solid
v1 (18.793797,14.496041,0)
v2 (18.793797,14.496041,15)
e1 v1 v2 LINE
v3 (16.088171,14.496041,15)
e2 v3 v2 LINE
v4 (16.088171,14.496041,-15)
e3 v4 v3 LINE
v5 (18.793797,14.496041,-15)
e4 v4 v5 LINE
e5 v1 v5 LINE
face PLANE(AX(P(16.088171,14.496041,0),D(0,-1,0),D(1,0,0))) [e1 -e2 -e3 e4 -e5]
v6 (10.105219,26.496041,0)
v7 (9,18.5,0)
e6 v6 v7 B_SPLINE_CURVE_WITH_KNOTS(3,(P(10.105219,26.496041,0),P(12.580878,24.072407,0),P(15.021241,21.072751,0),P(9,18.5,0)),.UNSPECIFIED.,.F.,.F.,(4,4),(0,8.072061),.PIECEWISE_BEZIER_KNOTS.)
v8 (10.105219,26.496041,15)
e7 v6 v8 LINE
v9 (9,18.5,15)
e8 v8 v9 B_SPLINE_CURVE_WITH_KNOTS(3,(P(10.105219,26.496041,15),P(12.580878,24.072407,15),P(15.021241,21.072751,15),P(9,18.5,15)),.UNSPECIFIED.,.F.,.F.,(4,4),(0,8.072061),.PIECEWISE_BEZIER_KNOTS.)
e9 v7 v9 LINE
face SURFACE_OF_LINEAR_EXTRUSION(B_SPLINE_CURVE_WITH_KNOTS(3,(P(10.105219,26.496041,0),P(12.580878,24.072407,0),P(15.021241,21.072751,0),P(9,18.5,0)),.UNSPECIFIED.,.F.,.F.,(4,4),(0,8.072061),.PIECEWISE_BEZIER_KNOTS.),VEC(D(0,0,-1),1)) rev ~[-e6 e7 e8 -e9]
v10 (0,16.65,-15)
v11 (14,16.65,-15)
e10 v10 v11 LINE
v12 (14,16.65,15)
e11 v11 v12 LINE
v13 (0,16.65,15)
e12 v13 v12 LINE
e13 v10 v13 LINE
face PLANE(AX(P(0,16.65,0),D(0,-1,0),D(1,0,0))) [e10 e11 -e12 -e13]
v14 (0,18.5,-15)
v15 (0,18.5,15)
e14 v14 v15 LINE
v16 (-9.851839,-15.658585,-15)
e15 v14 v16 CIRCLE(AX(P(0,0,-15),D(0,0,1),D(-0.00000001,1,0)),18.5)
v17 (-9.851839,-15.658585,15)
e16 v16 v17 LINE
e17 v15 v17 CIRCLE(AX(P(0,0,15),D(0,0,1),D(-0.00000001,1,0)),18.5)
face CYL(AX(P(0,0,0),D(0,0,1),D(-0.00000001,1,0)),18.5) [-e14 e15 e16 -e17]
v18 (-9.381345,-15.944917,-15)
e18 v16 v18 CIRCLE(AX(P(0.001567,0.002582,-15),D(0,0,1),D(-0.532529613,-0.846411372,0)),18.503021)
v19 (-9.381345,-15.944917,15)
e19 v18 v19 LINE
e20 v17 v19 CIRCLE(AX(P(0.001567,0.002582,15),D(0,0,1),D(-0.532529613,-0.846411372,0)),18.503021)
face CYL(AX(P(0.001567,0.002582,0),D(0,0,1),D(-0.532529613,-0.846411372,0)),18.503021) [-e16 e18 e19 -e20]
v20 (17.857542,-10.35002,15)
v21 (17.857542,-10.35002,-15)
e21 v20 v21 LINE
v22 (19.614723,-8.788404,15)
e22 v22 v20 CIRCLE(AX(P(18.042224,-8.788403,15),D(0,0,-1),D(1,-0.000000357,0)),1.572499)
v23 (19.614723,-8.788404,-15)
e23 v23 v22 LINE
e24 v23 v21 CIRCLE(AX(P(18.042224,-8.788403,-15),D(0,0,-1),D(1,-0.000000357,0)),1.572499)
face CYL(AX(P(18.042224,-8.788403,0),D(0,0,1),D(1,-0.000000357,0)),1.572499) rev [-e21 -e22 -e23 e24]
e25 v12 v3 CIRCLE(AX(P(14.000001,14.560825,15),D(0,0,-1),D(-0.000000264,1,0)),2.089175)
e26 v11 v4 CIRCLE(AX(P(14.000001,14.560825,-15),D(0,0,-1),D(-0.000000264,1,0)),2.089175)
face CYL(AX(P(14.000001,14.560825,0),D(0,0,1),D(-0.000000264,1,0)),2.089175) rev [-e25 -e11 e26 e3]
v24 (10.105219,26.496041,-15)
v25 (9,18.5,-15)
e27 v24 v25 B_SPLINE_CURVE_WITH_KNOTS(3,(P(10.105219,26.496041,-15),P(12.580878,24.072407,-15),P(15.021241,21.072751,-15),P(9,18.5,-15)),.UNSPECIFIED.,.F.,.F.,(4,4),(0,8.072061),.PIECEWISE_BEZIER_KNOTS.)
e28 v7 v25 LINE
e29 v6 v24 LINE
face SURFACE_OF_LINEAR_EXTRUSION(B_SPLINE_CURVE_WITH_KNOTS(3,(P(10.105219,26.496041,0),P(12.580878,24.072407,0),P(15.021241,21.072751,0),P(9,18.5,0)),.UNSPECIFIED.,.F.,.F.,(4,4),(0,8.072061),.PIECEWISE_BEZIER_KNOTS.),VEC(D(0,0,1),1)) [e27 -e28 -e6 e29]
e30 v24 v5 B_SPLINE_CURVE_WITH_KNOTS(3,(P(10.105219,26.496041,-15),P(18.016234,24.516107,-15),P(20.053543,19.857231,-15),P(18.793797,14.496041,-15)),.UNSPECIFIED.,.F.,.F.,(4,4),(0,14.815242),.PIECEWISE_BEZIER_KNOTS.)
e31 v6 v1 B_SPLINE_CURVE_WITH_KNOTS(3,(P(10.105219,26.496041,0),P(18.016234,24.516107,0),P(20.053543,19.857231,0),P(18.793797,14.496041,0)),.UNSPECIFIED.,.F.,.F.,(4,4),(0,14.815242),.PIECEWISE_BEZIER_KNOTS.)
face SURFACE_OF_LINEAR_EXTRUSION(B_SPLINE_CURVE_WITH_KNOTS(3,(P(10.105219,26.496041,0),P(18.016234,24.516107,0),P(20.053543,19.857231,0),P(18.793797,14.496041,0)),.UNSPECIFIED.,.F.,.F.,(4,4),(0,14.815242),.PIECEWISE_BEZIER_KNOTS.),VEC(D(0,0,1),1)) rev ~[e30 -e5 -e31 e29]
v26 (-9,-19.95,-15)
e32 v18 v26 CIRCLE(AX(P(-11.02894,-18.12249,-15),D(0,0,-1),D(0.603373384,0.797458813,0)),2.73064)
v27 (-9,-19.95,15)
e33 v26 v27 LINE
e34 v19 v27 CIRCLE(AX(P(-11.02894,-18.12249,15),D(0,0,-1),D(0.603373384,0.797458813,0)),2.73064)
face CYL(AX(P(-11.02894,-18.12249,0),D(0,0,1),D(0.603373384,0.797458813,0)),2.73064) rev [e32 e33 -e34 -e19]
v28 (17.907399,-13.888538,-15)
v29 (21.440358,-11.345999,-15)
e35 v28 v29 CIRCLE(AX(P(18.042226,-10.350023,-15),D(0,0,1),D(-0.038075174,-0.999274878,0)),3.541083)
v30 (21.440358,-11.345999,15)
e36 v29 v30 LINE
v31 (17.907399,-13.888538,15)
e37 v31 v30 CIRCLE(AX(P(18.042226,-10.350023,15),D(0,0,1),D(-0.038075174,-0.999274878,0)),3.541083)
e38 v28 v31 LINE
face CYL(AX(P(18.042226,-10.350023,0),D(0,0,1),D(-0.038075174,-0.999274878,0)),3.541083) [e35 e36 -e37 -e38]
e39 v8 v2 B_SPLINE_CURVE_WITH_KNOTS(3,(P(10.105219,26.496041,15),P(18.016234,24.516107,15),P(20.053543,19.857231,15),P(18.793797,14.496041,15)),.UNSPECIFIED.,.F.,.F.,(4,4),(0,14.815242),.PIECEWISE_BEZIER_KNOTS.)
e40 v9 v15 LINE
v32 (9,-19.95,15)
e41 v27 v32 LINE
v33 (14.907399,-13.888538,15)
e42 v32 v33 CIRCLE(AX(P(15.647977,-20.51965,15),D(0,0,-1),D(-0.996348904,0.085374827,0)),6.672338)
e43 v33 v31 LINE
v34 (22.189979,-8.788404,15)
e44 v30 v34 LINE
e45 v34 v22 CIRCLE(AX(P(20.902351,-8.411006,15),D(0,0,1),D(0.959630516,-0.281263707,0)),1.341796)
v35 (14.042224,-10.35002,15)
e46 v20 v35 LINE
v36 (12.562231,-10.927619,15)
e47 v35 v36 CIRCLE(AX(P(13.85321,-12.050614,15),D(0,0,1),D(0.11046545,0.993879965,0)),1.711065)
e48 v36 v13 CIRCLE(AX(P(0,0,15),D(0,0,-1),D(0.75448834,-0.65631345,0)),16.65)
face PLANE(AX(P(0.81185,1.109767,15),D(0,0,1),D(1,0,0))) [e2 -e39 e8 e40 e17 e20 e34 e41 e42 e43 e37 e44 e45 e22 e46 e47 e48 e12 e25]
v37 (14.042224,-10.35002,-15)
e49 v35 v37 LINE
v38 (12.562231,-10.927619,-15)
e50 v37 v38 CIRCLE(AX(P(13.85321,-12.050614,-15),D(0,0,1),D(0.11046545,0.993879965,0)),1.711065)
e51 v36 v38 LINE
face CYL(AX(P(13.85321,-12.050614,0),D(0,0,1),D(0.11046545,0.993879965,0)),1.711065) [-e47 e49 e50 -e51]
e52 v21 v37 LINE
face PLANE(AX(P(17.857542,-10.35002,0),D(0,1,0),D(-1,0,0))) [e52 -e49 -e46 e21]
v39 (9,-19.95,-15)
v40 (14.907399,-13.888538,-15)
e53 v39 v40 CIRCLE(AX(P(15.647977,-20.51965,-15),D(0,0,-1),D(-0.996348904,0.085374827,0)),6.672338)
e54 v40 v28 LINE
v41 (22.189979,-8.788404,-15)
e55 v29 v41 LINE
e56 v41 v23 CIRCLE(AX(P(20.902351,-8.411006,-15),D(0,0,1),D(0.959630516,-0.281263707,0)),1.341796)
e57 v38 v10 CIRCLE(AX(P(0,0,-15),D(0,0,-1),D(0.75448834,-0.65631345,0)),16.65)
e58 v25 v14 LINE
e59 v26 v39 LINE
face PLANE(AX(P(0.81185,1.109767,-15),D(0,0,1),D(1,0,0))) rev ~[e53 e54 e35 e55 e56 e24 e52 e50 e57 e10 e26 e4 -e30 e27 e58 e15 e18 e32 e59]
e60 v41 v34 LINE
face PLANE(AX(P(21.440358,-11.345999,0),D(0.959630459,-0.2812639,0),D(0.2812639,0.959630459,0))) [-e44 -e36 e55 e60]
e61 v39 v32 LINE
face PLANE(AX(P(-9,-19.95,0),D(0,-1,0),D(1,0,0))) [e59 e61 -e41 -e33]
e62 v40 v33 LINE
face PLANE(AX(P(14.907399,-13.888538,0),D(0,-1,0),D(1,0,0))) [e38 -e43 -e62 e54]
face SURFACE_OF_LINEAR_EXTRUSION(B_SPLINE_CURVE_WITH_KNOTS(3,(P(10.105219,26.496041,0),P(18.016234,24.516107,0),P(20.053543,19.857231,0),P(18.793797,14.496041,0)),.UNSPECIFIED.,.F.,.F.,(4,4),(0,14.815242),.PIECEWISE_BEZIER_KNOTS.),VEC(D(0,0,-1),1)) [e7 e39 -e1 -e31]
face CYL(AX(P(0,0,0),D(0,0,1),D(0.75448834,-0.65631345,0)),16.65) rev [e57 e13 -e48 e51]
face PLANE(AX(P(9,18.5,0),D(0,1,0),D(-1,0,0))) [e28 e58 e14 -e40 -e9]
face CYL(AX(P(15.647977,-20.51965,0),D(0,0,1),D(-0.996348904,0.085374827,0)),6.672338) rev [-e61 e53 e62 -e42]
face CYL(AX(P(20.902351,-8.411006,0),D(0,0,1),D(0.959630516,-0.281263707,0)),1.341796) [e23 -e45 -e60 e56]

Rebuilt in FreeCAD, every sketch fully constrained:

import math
import FreeCAD as App
import Part
import Sketcher
from FreeCAD import Vector

doc = App.newDocument("Part")
body = doc.addObject("PartDesign::Body", "Body")

sketch1 = body.newObject("Sketcher::SketchObject", "Sketch")
sketch1.AttachmentSupport = (doc.getObject("XY_Plane"), [""])
sketch1.MapMode = "FlatFace"
sketch1.addGeometry(Part.ArcOfCircle(Part.Circle(Vector(0, 0, 0), Vector(0, 0, 1), 16.65), math.radians(90), math.radians(318.980682)), False)
sketch1.addGeometry(Part.LineSegment(Vector(0, 16.65, 0), Vector(14, 16.65, 0)), False)
sketch1.addGeometry(Part.ArcOfCircle(Part.Circle(Vector(14.000001, 14.560825, 0), Vector(0, 0, 1), 2.089175), math.radians(-1.776987), math.radians(90.000015)), False)
sketch1.addGeometry(Part.LineSegment(Vector(16.088171, 14.496041, 0), Vector(18.793797, 14.496041, 0)), False)
sketch1.addGeometry(Part.BSplineCurve([Vector(10.105219, 26.496041, 0), Vector(18.016234, 24.516107, 0), Vector(20.053543, 19.857231, 0), Vector(18.793797, 14.496041, 0)], [4, 4], [0, 14.815242], False, 3, [1, 1, 1, 1], False), False)
sketch1.addGeometry(Part.BSplineCurve([Vector(10.105219, 26.496041, 0), Vector(12.580878, 24.072407, 0), Vector(15.021241, 21.072751, 0), Vector(9, 18.5, 0)], [4, 4], [0, 8.072061], False, 3, [1, 1, 1, 1], False), False)
sketch1.addGeometry(Part.LineSegment(Vector(9, 18.5, 0), Vector(0, 18.5, 0)), False)
sketch1.addGeometry(Part.ArcOfCircle(Part.Circle(Vector(0, 0, 0), Vector(0, 0, 1), 18.5), math.radians(90.000001), math.radians(237.823319)), False)
sketch1.addGeometry(Part.ArcOfCircle(Part.Circle(Vector(0.001567, 0.002582, 0), Vector(0, 0, 1), 18.503021), math.radians(-122.17653), math.radians(-120.470965)), False)
sketch1.addGeometry(Part.ArcOfCircle(Part.Circle(Vector(-11.02894, -18.12249, 0), Vector(0, 0, 1), 2.73064), math.radians(-42.010047), math.radians(52.888118)), False)
sketch1.addGeometry(Part.LineSegment(Vector(-9, -19.95, 0), Vector(9, -19.95, 0)), False)
sketch1.addGeometry(Part.ArcOfCircle(Part.Circle(Vector(15.647977, -20.51965, 0), Vector(0, 0, 1), 6.672338), math.radians(96.372519), math.radians(175.102421)), False)
sketch1.addGeometry(Part.LineSegment(Vector(14.907399, -13.888538, 0), Vector(17.907399, -13.888538, 0)), False)
sketch1.addGeometry(Part.ArcOfCircle(Part.Circle(Vector(18.042226, -10.350023, 0), Vector(0, 0, 1), 3.541083), math.radians(-92.182074), math.radians(-16.335607)), False)
sketch1.addGeometry(Part.LineSegment(Vector(21.440358, -11.345999, 0), Vector(22.189979, -8.788404, 0)), False)
sketch1.addGeometry(Part.ArcOfCircle(Part.Circle(Vector(20.902351, -8.411006, 0), Vector(0, 0, 1), 1.341796), math.radians(-16.335641), math.radians(196.335641)), False)
sketch1.addGeometry(Part.ArcOfCircle(Part.Circle(Vector(18.042224, -8.788403, 0), Vector(0, 0, 1), 1.572499), math.radians(-96.744657), math.radians(-0.00002)), False)
sketch1.addGeometry(Part.LineSegment(Vector(17.857542, -10.35002, 0), Vector(14.042224, -10.35002, 0)), False)
sketch1.addGeometry(Part.ArcOfCircle(Part.Circle(Vector(13.85321, -12.050614, 0), Vector(0, 0, 1), 1.711065), math.radians(83.657853), math.radians(138.98071)), False)
sketch1.addConstraint(Sketcher.Constraint("Block", 4))
sketch1.addConstraint(Sketcher.Constraint("Block", 5))
sketch1.addConstraint(Sketcher.Constraint("Coincident", 0, 1, 1, 1))
sketch1.addConstraint(Sketcher.Constraint("Coincident", 1, 2, 2, 2))
sketch1.addConstraint(Sketcher.Constraint("Coincident", 2, 1, 3, 1))
sketch1.addConstraint(Sketcher.Constraint("Coincident", 3, 2, 4, 2))
sketch1.addConstraint(Sketcher.Constraint("Coincident", 5, 2, 6, 1))
sketch1.addConstraint(Sketcher.Constraint("Coincident", 6, 2, 7, 1))
sketch1.addConstraint(Sketcher.Constraint("Coincident", 7, 2, 8, 1))
sketch1.addConstraint(Sketcher.Constraint("Coincident", 8, 2, 9, 2))
sketch1.addConstraint(Sketcher.Constraint("Coincident", 9, 1, 10, 1))
sketch1.addConstraint(Sketcher.Constraint("Coincident", 10, 2, 11, 2))
sketch1.addConstraint(Sketcher.Constraint("Coincident", 11, 1, 12, 1))
sketch1.addConstraint(Sketcher.Constraint("Coincident", 12, 2, 13, 1))
sketch1.addConstraint(Sketcher.Constraint("Coincident", 13, 2, 14, 1))
sketch1.addConstraint(Sketcher.Constraint("Coincident", 14, 2, 15, 1))
sketch1.addConstraint(Sketcher.Constraint("Coincident", 15, 2, 16, 2))
sketch1.addConstraint(Sketcher.Constraint("Coincident", 16, 1, 17, 1))
sketch1.addConstraint(Sketcher.Constraint("Coincident", 17, 2, 18, 1))
sketch1.addConstraint(Sketcher.Constraint("Coincident", 18, 2, 0, 2))
sketch1.addConstraint(Sketcher.Constraint("Horizontal", 1))
sketch1.addConstraint(Sketcher.Constraint("Horizontal", 3))
sketch1.addConstraint(Sketcher.Constraint("Horizontal", 6))
sketch1.addConstraint(Sketcher.Constraint("Horizontal", 10))
sketch1.addConstraint(Sketcher.Constraint("Horizontal", 12))
sketch1.addConstraint(Sketcher.Constraint("Horizontal", 17))
sketch1.addConstraint(Sketcher.Constraint("Coincident", 0, 3, -1, 1))
sketch1.addConstraint(Sketcher.Constraint("Coincident", 7, 3, -1, 1))
sketch1.addConstraint(Sketcher.Constraint("PointOnObject", 0, 1, -2))
sketch1.addConstraint(Sketcher.Constraint("PointOnObject", 6, 2, -2))
sketch1.addConstraint(Sketcher.Constraint("DistanceX", 1, 1, 1, 2, 14.0))
sketch1.addConstraint(Sketcher.Constraint("DistanceX", 10, 1, 10, 2, 18.0))
sketch1.addConstraint(Sketcher.Constraint("DistanceX", 12, 1, 12, 2, 3.0))
sketch1.addConstraint(Sketcher.Constraint("Radius", 0, 16.65))
sketch1.addConstraint(Sketcher.Constraint("DistanceX", -1, 1, 2, 3, 14.000001))
sketch1.addConstraint(Sketcher.Constraint("DistanceX", 9, 1, -1, 1, 9.0))
sketch1.addConstraint(Sketcher.Constraint("DistanceX", 17, 2, 16, 3, 4.0))
sketch1.addConstraint(Sketcher.Constraint("Radius", 16, 1.572499))
sketch1.addConstraint(Sketcher.Constraint("DistanceY", 9, 1, -1, 1, 19.95))
sketch1.addConstraint(Sketcher.Constraint("Radius", 8, 18.503021))
sketch1.addConstraint(Sketcher.Constraint("Radius", 9, 2.73064))
sketch1.addConstraint(Sketcher.Constraint("Radius", 11, 6.672338))
sketch1.addConstraint(Sketcher.Constraint("DistanceY", 13, 2, -1, 1, 11.345999))
sketch1.addConstraint(Sketcher.Constraint("Radius", 2, 2.089175))
sketch1.addConstraint(Sketcher.Constraint("Radius", 13, 3.541083))
sketch1.addConstraint(Sketcher.Constraint("Radius", 15, 1.341796))
sketch1.addConstraint(Sketcher.Constraint("Radius", 18, 1.711065))
sketch1.addConstraint(Sketcher.Constraint("DistanceX", -1, 1, 11, 1, 14.907399))
sketch1.addConstraint(Sketcher.Constraint("DistanceX", 9, 3, 7, 2, 1.177101))
sketch1.addConstraint(Sketcher.Constraint("DistanceY", 8, 2, 8, 3, 15.947499))
sketch1.addConstraint(Sketcher.Constraint("DistanceY", 14, 2, 15, 3, 0.377398))
sketch1.addConstraint(Sketcher.Constraint("DistanceY", 15, 2, 15, 3, 0.377398))
sketch1.addConstraint(Sketcher.Constraint("DistanceY", 18, 2, 17, 2, 0.577599))
sketch1.addConstraint(Sketcher.Constraint("DistanceX", 17, 2, 17, 1, 3.815318))
sketch1.addConstraint(Sketcher.Constraint("DistanceX", 9, 3, -1, 1, 11.02894))
sketch1.addConstraint(Sketcher.Constraint("DistanceY", 11, 3, -1, 1, 20.51965))
sketch1.addConstraint(Sketcher.Constraint("DistanceX", -1, 1, 15, 3, 20.902351))
sketch1.addConstraint(Sketcher.Constraint("DistanceX", -1, 1, 18, 3, 13.85321))
sketch1.addConstraint(Sketcher.Constraint("DistanceX", 11, 3, 13, 3, 2.394249))
sketch1.addConstraint(Sketcher.Constraint("DistanceY", 13, 3, 14, 2, 1.561619))
pad1 = body.newObject("PartDesign::Pad", "Pad")
pad1.Profile = sketch1
pad1.Length = 30
pad1.Midplane = True

doc.recompute()
